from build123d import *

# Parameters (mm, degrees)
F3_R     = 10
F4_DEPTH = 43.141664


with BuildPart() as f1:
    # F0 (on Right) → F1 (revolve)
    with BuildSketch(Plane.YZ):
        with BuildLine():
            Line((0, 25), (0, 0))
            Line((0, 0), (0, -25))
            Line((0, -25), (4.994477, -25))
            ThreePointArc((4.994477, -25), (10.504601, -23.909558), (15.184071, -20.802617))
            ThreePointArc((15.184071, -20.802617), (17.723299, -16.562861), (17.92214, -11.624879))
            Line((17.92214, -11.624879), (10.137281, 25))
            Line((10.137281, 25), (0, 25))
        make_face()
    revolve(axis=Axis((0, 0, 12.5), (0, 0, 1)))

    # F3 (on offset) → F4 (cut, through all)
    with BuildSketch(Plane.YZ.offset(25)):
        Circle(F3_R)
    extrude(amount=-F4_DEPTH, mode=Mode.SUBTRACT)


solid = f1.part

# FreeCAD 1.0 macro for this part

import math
import FreeCAD as App
import Part
import Sketcher
Q = App.Units.Quantity

doc = App.newDocument("Part")
body = doc.addObject("PartDesign::Body", "Body")

# Sketch on YZ plane
sketch1 = body.newObject("Sketcher::SketchObject", "Sketch")
sketch1.AttachmentSupport = (doc.getObject("YZ_Plane"), [""])
sketch1.MapMode = "FlatFace"
sketch1.addGeometry([
    Part.LineSegment(App.Vector(0, 25, 0), App.Vector(0, -25, 0)),  # 0
    Part.LineSegment(App.Vector(0, -25, 0), App.Vector(5, -25, 0)),  # 1
    Part.ArcOfCircle(Part.Circle(App.Vector(5, -10.5, 0), App.Vector(0, 0, 1), 14.5), math.radians(-90), math.radians(-45)),  # 2
    Part.ArcOfCircle(Part.Circle(App.Vector(8.1, -13.7, 0), App.Vector(0, 0, 1), 10), math.radians(-45), math.radians(12)),  # 3
    Part.LineSegment(App.Vector(17.9, -11.6, 0), App.Vector(10.1, 25, 0)),  # 4
    Part.LineSegment(App.Vector(10.1, 25, 0), App.Vector(0, 25, 0)),  # 5
], False)
sketch1.addConstraint([
    Sketcher.Constraint("Coincident", 0, 2, 1, 1),
    Sketcher.Constraint("Tangent", 1, 2, 2, 1),
    Sketcher.Constraint("Tangent", 2, 2, 3, 1),
    Sketcher.Constraint("Tangent", 3, 2, 4, 1),
    Sketcher.Constraint("Coincident", 4, 2, 5, 1),
    Sketcher.Constraint("Coincident", 5, 2, 0, 1),
    Sketcher.Constraint("Vertical", 0),
    Sketcher.Constraint("Horizontal", 1),
    Sketcher.Constraint("Horizontal", 5),
    Sketcher.Constraint("Symmetric", 0, 2, 5, 2, -1, 1),
    Sketcher.Constraint("Radius", 3, 10.0),
    Sketcher.Constraint("DistanceY", 0, 2, 0, 1, 50.0),
    Sketcher.Constraint("Angle", 4, Q("102.000001 deg")),
    Sketcher.Constraint("Radius", 2, 14.466853),
    Sketcher.Constraint("Distance", 4, 37.443101),
    Sketcher.Constraint("DistanceX", 5, 2, 5, 1, 10.137281),
])
revolution = body.newObject("PartDesign::Revolution", "Revolution")
revolution.Profile = sketch1
revolution.ReferenceAxis = (sketch1, ["V_Axis"])
revolution.Angle = 360

# Sketch on YZ plane
sketch2 = body.newObject("Sketcher::SketchObject", "Sketch001")
sketch2.AttachmentSupport = (doc.getObject("YZ_Plane"), [""])
sketch2.MapMode = "FlatFace"
sketch2.AttachmentOffset = App.Placement(App.Vector(0, 0, 25), App.Rotation())
sketch2.addGeometry(Part.Circle(App.Vector(0, 0, 0), App.Vector(0, 0, 1), 10), False)
sketch2.addConstraint([
    Sketcher.Constraint("Coincident", 0, 3, -1, 1),
    Sketcher.Constraint("Diameter", 0, 20.0),
])
pocket1 = body.newObject("PartDesign::Pocket", "Pocket")
pocket1.Profile = sketch2
pocket1.Type = "ThroughAll"

doc.recompute()
